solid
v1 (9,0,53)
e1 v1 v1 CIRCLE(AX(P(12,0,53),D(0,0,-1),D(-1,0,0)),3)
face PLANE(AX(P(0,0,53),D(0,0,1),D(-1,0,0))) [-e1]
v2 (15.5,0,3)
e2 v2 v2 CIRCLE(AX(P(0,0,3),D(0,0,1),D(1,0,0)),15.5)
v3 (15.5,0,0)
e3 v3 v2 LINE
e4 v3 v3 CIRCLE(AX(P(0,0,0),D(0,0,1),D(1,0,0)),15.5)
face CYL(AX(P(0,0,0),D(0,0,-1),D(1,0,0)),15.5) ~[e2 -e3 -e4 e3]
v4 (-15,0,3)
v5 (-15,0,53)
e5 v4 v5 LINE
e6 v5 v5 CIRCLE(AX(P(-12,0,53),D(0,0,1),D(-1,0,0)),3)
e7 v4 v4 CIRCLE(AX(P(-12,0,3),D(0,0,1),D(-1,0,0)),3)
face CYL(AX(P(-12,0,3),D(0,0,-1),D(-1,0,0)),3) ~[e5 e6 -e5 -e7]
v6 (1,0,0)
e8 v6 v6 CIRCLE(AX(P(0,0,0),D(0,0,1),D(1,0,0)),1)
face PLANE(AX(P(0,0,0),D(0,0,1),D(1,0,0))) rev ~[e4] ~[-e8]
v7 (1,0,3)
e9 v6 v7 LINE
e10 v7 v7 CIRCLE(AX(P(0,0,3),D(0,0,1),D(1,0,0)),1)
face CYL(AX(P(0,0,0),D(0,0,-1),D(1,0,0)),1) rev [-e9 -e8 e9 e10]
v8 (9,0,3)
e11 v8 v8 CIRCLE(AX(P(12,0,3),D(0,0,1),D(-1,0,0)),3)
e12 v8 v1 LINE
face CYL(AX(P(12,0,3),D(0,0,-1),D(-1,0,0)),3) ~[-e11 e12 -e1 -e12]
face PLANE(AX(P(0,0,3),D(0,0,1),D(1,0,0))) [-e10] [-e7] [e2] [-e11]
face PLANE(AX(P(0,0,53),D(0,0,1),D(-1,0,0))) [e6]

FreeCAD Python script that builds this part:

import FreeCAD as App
import Part
import Sketcher

V = App.Vector
Q = App.Units.Quantity

doc = App.newDocument("Part")
body = doc.addObject("PartDesign::Body", "Body")

# Sketch on XY plane
sketch1 = body.newObject("Sketcher::SketchObject", "Sketch")
sketch1.AttachmentSupport = (doc.getObject("XY_Plane"), [""])
sketch1.MapMode = "FlatFace"
sketch1.addGeometry(Part.Circle(V(0, 0, 0), V(0, 0, 1), 15.5), False)
sketch1.addGeometry(Part.Circle(V(0, 0, 0), V(0, 0, 1), 1), False)
sketch1.addConstraint(Sketcher.Constraint("Coincident", 0, 3, -1, 1))
sketch1.addConstraint(Sketcher.Constraint("Coincident", 1, 3, -1, 1))
sketch1.addConstraint(Sketcher.Constraint("Diameter", 0, Q("31 mm")))
sketch1.addConstraint(Sketcher.Constraint("Diameter", 1, Q("2 mm")))
pad1 = body.newObject("PartDesign::Pad", "Pad")
pad1.Profile = sketch1
pad1.Length = 3

# Sketch on XY plane
sketch2 = body.newObject("Sketcher::SketchObject", "Sketch001")
sketch2.AttachmentSupport = (doc.getObject("XY_Plane"), [""])
sketch2.MapMode = "FlatFace"
sketch2.AttachmentOffset = App.Placement(V(0, 0, 3), App.Rotation())
sketch2.addGeometry(Part.Circle(V(12, 0, 0), V(0, 0, 1), 3), False)
sketch2.addGeometry(Part.Circle(V(-12, 0, 0), V(0, 0, 1), 3), False)
sketch2.addConstraint(Sketcher.Constraint("Equal", 0, 1))
sketch2.addConstraint(Sketcher.Constraint("Symmetric", 0, 3, 1, 3, -1, 1))
sketch2.addConstraint(Sketcher.Constraint("PointOnObject", 0, 3, -1))
sketch2.addConstraint(Sketcher.Constraint("Diameter", 0, Q("6 mm")))
sketch2.addConstraint(Sketcher.Constraint("DistanceX", -1, 1, 0, 3, Q("12 mm")))
pad2 = body.newObject("PartDesign::Pad", "Pad001")
pad2.Profile = sketch2
pad2.Length = 50

doc.recompute()
